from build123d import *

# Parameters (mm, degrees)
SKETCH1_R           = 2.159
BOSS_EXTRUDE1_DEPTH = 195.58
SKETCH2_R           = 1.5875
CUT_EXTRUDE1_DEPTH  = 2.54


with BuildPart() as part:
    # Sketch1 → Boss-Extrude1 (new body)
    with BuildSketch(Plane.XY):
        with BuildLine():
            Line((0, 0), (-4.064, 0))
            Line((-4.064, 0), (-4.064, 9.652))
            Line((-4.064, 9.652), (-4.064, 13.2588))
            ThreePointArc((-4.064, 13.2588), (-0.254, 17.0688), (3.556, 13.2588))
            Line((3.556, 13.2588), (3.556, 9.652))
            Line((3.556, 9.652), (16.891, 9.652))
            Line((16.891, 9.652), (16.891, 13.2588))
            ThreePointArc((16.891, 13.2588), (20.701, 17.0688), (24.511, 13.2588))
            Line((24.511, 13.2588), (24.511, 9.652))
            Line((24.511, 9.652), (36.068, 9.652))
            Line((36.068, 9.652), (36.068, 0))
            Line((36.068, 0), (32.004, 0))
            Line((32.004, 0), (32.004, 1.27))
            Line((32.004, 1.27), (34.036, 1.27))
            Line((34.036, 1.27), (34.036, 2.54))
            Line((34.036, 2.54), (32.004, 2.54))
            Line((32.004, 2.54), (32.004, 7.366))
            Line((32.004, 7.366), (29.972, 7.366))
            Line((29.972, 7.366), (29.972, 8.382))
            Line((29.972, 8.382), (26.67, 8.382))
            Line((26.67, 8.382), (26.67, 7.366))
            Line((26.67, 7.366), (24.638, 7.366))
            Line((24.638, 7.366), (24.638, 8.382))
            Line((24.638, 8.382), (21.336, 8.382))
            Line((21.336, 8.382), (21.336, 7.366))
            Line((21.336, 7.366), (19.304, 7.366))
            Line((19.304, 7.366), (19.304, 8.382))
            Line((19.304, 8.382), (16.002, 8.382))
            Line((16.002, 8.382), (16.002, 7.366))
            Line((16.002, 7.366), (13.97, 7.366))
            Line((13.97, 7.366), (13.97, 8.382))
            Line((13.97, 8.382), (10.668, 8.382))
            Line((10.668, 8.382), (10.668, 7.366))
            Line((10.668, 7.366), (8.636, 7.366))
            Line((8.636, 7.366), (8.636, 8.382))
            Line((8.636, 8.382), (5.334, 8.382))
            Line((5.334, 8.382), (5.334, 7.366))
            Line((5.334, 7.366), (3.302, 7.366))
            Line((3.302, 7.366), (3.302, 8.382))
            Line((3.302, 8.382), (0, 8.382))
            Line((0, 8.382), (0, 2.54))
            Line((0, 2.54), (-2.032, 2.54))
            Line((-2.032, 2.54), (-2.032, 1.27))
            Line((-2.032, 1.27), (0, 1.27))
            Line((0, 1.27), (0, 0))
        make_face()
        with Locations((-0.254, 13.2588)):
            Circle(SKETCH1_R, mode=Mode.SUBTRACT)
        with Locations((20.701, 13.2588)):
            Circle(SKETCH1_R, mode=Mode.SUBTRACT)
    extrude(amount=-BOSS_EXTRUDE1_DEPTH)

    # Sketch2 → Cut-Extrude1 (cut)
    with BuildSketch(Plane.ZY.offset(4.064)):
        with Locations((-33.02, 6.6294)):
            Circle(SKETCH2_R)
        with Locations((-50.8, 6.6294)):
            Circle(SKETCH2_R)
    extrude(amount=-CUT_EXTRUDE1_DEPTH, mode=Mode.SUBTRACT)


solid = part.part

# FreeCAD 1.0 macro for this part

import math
import FreeCAD as App
import Part
import Sketcher
Q = App.Units.Quantity

doc = App.newDocument("Part")
body = doc.addObject("PartDesign::Body", "Body")

# Sketch on XY plane
sketch1 = body.newObject("Sketcher::SketchObject", "Sketch")
sketch1.AttachmentSupport = (doc.getObject("XY_Plane"), [""])
sketch1.MapMode = "FlatFace"
sketch1.addGeometry([
    Part.LineSegment(App.Vector(-4.1, 0, 0), App.Vector(0, 0, 0)),  # 0
    Part.LineSegment(App.Vector(0, 0, 0), App.Vector(0, 1.3, 0)),  # 1
    Part.LineSegment(App.Vector(0, 1.3, 0), App.Vector(-2, 1.3, 0)),  # 2
    Part.LineSegment(App.Vector(-2, 1.3, 0), App.Vector(-2, 2.5, 0)),  # 3
    Part.LineSegment(App.Vector(-2, 2.5, 0), App.Vector(0, 2.5, 0)),  # 4
    Part.LineSegment(App.Vector(0, 2.5, 0), App.Vector(0, 8.4, 0)),  # 5
    Part.LineSegment(App.Vector(0, 8.4, 0), App.Vector(3.3, 8.4, 0)),  # 6
    Part.LineSegment(App.Vector(3.3, 8.4, 0), App.Vector(3.3, 7.4, 0)),  # 7
    Part.LineSegment(App.Vector(3.3, 7.4, 0), App.Vector(5.3, 7.4, 0)),  # 8
    Part.LineSegment(App.Vector(5.3, 7.4, 0), App.Vector(5.3, 8.4, 0)),  # 9
    Part.LineSegment(App.Vector(5.3, 8.4, 0), App.Vector(8.6, 8.4, 0)),  # 10
    Part.LineSegment(App.Vector(8.6, 8.4, 0), App.Vector(8.6, 7.4, 0)),  # 11
    Part.LineSegment(App.Vector(8.6, 7.4, 0), App.Vector(10.7, 7.4, 0)),  # 12
    Part.LineSegment(App.Vector(10.7, 7.4, 0), App.Vector(10.7, 8.4, 0)),  # 13
    Part.LineSegment(App.Vector(10.7, 8.4, 0), App.Vector(14, 8.4, 0)),  # 14
    Part.LineSegment(App.Vector(14, 8.4, 0), App.Vector(14, 7.4, 0)),  # 15
    Part.LineSegment(App.Vector(14, 7.4, 0), App.Vector(16, 7.4, 0)),  # 16
    Part.LineSegment(App.Vector(16, 7.4, 0), App.Vector(16, 8.4, 0)),  # 17
    Part.LineSegment(App.Vector(16, 8.4, 0), App.Vector(19.3, 8.4, 0)),  # 18
    Part.LineSegment(App.Vector(19.3, 8.4, 0), App.Vector(19.3, 7.4, 0)),  # 19
    Part.LineSegment(App.Vector(19.3, 7.4, 0), App.Vector(21.3, 7.4, 0)),  # 20
    Part.LineSegment(App.Vector(21.3, 7.4, 0), App.Vector(21.3, 8.4, 0)),  # 21
    Part.LineSegment(App.Vector(21.3, 8.4, 0), App.Vector(24.6, 8.4, 0)),  # 22
    Part.LineSegment(App.Vector(24.6, 8.4, 0), App.Vector(24.6, 7.4, 0)),  # 23
    Part.LineSegment(App.Vector(24.6, 7.4, 0), App.Vector(26.7, 7.4, 0)),  # 24
    Part.LineSegment(App.Vector(26.7, 7.4, 0), App.Vector(26.7, 8.4, 0)),  # 25
    Part.LineSegment(App.Vector(26.7, 8.4, 0), App.Vector(30, 8.4, 0)),  # 26
    Part.LineSegment(App.Vector(30, 8.4, 0), App.Vector(30, 7.4, 0)),  # 27
    Part.LineSegment(App.Vector(30, 7.4, 0), App.Vector(32, 7.4, 0)),  # 28
    Part.LineSegment(App.Vector(32, 7.4, 0), App.Vector(32, 2.5, 0)),  # 29
    Part.LineSegment(App.Vector(32, 2.5, 0), App.Vector(34, 2.5, 0)),  # 30
    Part.LineSegment(App.Vector(34, 2.5, 0), App.Vector(34, 1.3, 0)),  # 31
    Part.LineSegment(App.Vector(34, 1.3, 0), App.Vector(32, 1.3, 0)),  # 32
    Part.LineSegment(App.Vector(32, 1.3, 0), App.Vector(32, 0, 0)),  # 33
    Part.LineSegment(App.Vector(32, 0, 0), App.Vector(36.1, 0, 0)),  # 34
    Part.LineSegment(App.Vector(36.1, 0, 0), App.Vector(36.1, 9.7, 0)),  # 35
    Part.LineSegment(App.Vector(36.1, 9.7, 0), App.Vector(24.5, 9.7, 0)),  # 36
    Part.LineSegment(App.Vector(24.5, 9.7, 0), App.Vector(24.5, 13.3, 0)),  # 37
    Part.ArcOfCircle(Part.Circle(App.Vector(20.7, 13.3, 0), App.Vector(0, 0, 1), 3.8), math.radians(0), math.radians(180)),  # 38
    Part.LineSegment(App.Vector(16.9, 13.3, 0), App.Vector(16.9, 9.7, 0)),  # 39
    Part.LineSegment(App.Vector(16.9, 9.7, 0), App.Vector(3.6, 9.7, 0)),  # 40
    Part.LineSegment(App.Vector(3.6, 9.7, 0), App.Vector(3.6, 13.3, 0)),  # 41
    Part.ArcOfCircle(Part.Circle(App.Vector(-0.3, 13.3, 0), App.Vector(0, 0, 1), 3.8), math.radians(0), math.radians(180)),  # 42
    Part.LineSegment(App.Vector(-4.1, 13.3, 0), App.Vector(-4.1, 0, 0)),  # 43
    Part.Circle(App.Vector(20.7, 13.3, 0), App.Vector(0, 0, 1), 2.2),  # 44
    Part.Circle(App.Vector(-0.3, 13.3, 0), App.Vector(0, 0, 1), 2.2),  # 45
], False)
sketch1.addConstraint([
    Sketcher.Constraint("Coincident", 0, 2, 1, 1),
    Sketcher.Constraint("Coincident", 1, 2, 2, 1),
    Sketcher.Constraint("Coincident", 2, 2, 3, 1),
    Sketcher.Constraint("Coincident", 3, 2, 4, 1),
    Sketcher.Constraint("Coincident", 4, 2, 5, 1),
    Sketcher.Constraint("Coincident", 5, 2, 6, 1),
    Sketcher.Constraint("Coincident", 6, 2, 7, 1),
    Sketcher.Constraint("Coincident", 7, 2, 8, 1),
    Sketcher.Constraint("Coincident", 8, 2, 9, 1),
    Sketcher.Constraint("Coincident", 9, 2, 10, 1),
    Sketcher.Constraint("Coincident", 10, 2, 11, 1),
    Sketcher.Constraint("Coincident", 11, 2, 12, 1),
    Sketcher.Constraint("Coincident", 12, 2, 13, 1),
    Sketcher.Constraint("Coincident", 13, 2, 14, 1),
    Sketcher.Constraint("Coincident", 14, 2, 15, 1),
    Sketcher.Constraint("Coincident", 15, 2, 16, 1),
    Sketcher.Constraint("Coincident", 16, 2, 17, 1),
    Sketcher.Constraint("Coincident", 17, 2, 18, 1),
    Sketcher.Constraint("Coincident", 18, 2, 19, 1),
    Sketcher.Constraint("Coincident", 19, 2, 20, 1),
    Sketcher.Constraint("Coincident", 20, 2, 21, 1),
    Sketcher.Constraint("Coincident", 21, 2, 22, 1),
    Sketcher.Constraint("Coincident", 22, 2, 23, 1),
    Sketcher.Constraint("Coincident", 23, 2, 24, 1),
    Sketcher.Constraint("Coincident", 24, 2, 25, 1),
    Sketcher.Constraint("Coincident", 25, 2, 26, 1),
    Sketcher.Constraint("Coincident", 26, 2, 27, 1),
    Sketcher.Constraint("Coincident", 27, 2, 28, 1),
    Sketcher.Constraint("Coincident", 28, 2, 29, 1),
    Sketcher.Constraint("Coincident", 29, 2, 30, 1),
    Sketcher.Constraint("Coincident", 30, 2, 31, 1),
    Sketcher.Constraint("Coincident", 31, 2, 32, 1),
    Sketcher.Constraint("Coincident", 32, 2, 33, 1),
    Sketcher.Constraint("Coincident", 33, 2, 34, 1),
    Sketcher.Constraint("Coincident", 34, 2, 35, 1),
    Sketcher.Constraint("Coincident", 35, 2, 36, 1),
    Sketcher.Constraint("Coincident", 36, 2, 37, 1),
    Sketcher.Constraint("Tangent", 37, 2, 38, 1),
    Sketcher.Constraint("Tangent", 38, 2, 39, 1),
    Sketcher.Constraint("Coincident", 39, 2, 40, 1),
    Sketcher.Constraint("Coincident", 40, 2, 41, 1),
    Sketcher.Constraint("Tangent", 41, 2, 42, 1),
    Sketcher.Constraint("Tangent", 42, 2, 43, 1),
    Sketcher.Constraint("Coincident", 43, 2, 0, 1),
    Sketcher.Constraint("Horizontal", 0),
    Sketcher.Constraint("Vertical", 1),
    Sketcher.Constraint("Horizontal", 2),
    Sketcher.Constraint("Vertical", 3),
    Sketcher.Constraint("Horizontal", 4),
    Sketcher.Constraint("Vertical", 5),
    Sketcher.Constraint("Horizontal", 6),
    Sketcher.Constraint("Vertical", 7),
    Sketcher.Constraint("Horizontal", 8),
    Sketcher.Constraint("Vertical", 9),
    Sketcher.Constraint("Horizontal", 10),
    Sketcher.Constraint("Vertical", 11),
    Sketcher.Constraint("Horizontal", 12),
    Sketcher.Constraint("Vertical", 13),
    Sketcher.Constraint("Horizontal", 14),
    Sketcher.Constraint("Vertical", 15),
    Sketcher.Constraint("Horizontal", 16),
    Sketcher.Constraint("Vertical", 17),
    Sketcher.Constraint("Horizontal", 18),
    Sketcher.Constraint("Vertical", 19),
    Sketcher.Constraint("Horizontal", 20),
    Sketcher.Constraint("Vertical", 21),
    Sketcher.Constraint("Horizontal", 22),
    Sketcher.Constraint("Vertical", 23),
    Sketcher.Constraint("Horizontal", 24),
    Sketcher.Constraint("Vertical", 25),
    Sketcher.Constraint("Horizontal", 26),
    Sketcher.Constraint("Vertical", 27),
    Sketcher.Constraint("Horizontal", 28),
    Sketcher.Constraint("Vertical", 29),
    Sketcher.Constraint("Horizontal", 30),
    Sketcher.Constraint("Vertical", 31),
    Sketcher.Constraint("Horizontal", 32),
    Sketcher.Constraint("Vertical", 33),
    Sketcher.Constraint("Horizontal", 34),
    Sketcher.Constraint("Vertical", 35),
    Sketcher.Constraint("Horizontal", 36),
    Sketcher.Constraint("Vertical", 37),
    Sketcher.Constraint("Vertical", 39),
    Sketcher.Constraint("Horizontal", 40),
    Sketcher.Constraint("Vertical", 41),
    Sketcher.Constraint("Vertical", 43),
    Sketcher.Constraint("Coincident", 0, 2, -1, 1),
    Sketcher.Constraint("Coincident", 44, 3, 38, 3),
    Sketcher.Constraint("Coincident", 45, 3, 42, 3),
    Sketcher.Constraint("Equal", 38, 42),
    Sketcher.Constraint("Equal", 44, 45),
    Sketcher.Constraint("PointOnObject", 4, 2, -2),
    Sketcher.Constraint("PointOnObject", 33, 2, -1),
    Sketcher.Constraint("Horizontal", 38, 3, 42, 3),
    Sketcher.Constraint("Horizontal", 6, 2, 9, 2),
    Sketcher.Constraint("Horizontal", 8, 2, 11, 2),
    Sketcher.Constraint("Horizontal", 10, 2, 13, 2),
    Sketcher.Constraint("Horizontal", 12, 2, 15, 2),
    Sketcher.Constraint("Horizontal", 14, 2, 17, 2),
    Sketcher.Constraint("Horizontal", 16, 2, 19, 2),
    Sketcher.Constraint("Horizontal", 18, 2, 21, 2),
    Sketcher.Constraint("Horizontal", 20, 2, 23, 2),
    Sketcher.Constraint("Horizontal", 22, 2, 25, 2),
    Sketcher.Constraint("Horizontal", 24, 2, 27, 2),
    Sketcher.Constraint("Horizontal", 4, 2, 29, 2),
    Sketcher.Constraint("Horizontal", 2, 2, 31, 2),
    Sketcher.Constraint("Horizontal", 36, 2, 39, 2),
    Sketcher.Constraint("Vertical", 29, 2, 32, 2),
    Sketcher.Constraint("Equal", 4, 8),
    Sketcher.Constraint("Equal", 6, 10),
    Sketcher.Constraint("Equal", 8, 12),
    Sketcher.Constraint("Equal", 10, 14),
    Sketcher.Constraint("Equal", 12, 16),
    Sketcher.Constraint("Equal", 14, 18),
    Sketcher.Constraint("Equal", 16, 20),
    Sketcher.Constraint("Equal", 18, 22),
    Sketcher.Constraint("Equal", 20, 24),
    Sketcher.Constraint("Equal", 22, 26),
    Sketcher.Constraint("Equal", 24, 28),
    Sketcher.Constraint("Equal", 28, 30),
    Sketcher.Constraint("Equal", 0, 34),
    Sketcher.Constraint("Equal", 1, 3),
    Sketcher.Constraint("Diameter", 44, Q("0.17 in")),
    Sketcher.Constraint("Radius", 38, Q("0.15 in")),
    Sketcher.Constraint("DistanceX", 0, 1, 0, 2, Q("0.16 in")),
    Sketcher.Constraint("DistanceX", 2, 2, 2, 1, Q("0.08 in")),
    Sketcher.Constraint("DistanceX", 6, 1, 6, 2, Q("0.13 in")),
    Sketcher.Constraint("DistanceY", 1, 1, 1, 2, Q("0.05 in")),
    Sketcher.Constraint("DistanceY", 5, 1, 5, 2, Q("0.23 in")),
    Sketcher.Constraint("DistanceY", 7, 2, 7, 1, Q("0.04 in")),
    Sketcher.Constraint("DistanceY", 35, 1, 35, 2, Q("0.38 in")),
    Sketcher.Constraint("DistanceX", 36, 2, 36, 1, Q("0.455 in")),
    Sketcher.Constraint("DistanceY", 37, 1, 37, 2, Q("0.142 in")),
])
pad1 = body.newObject("PartDesign::Pad", "Pad")
pad1.Profile = sketch1
pad1.Length = Q("7.7 in")
pad1.Reversed = True

# Sketch on YZ plane
sketch2 = body.newObject("Sketcher::SketchObject", "Sketch001")
sketch2.AttachmentSupport = (doc.getObject("YZ_Plane"), [""])
sketch2.MapMode = "FlatFace"
sketch2.AttachmentOffset = App.Placement(App.Vector(0, 0, -0.16 * 25.4), App.Rotation())
sketch2.addGeometry([
    Part.Circle(App.Vector(6.6, -33, 0), App.Vector(0, 0, 1), 1.6),
    Part.Circle(App.Vector(6.6, -50.8, 0), App.Vector(0, 0, 1), 1.6),
], False)
sketch2.addConstraint([
    Sketcher.Constraint("Equal", 0, 1),
    Sketcher.Constraint("Vertical", 0, 3, 1, 3),
    Sketcher.Constraint("Diameter", 0, Q("0.125 in")),
    Sketcher.Constraint("DistanceY", 1, 3, -1, 1, Q("2 in")),
    Sketcher.Constraint("DistanceY", 0, 3, -1, 1, Q("1.3 in")),
    Sketcher.Constraint("DistanceX", -1, 1, 0, 3, Q("0.261 in")),
])
pocket1 = body.newObject("PartDesign::Pocket", "Pocket")
pocket1.Profile = sketch2
pocket1.Length = Q("0.1 in")
pocket1.Reversed = True

doc.recompute()
